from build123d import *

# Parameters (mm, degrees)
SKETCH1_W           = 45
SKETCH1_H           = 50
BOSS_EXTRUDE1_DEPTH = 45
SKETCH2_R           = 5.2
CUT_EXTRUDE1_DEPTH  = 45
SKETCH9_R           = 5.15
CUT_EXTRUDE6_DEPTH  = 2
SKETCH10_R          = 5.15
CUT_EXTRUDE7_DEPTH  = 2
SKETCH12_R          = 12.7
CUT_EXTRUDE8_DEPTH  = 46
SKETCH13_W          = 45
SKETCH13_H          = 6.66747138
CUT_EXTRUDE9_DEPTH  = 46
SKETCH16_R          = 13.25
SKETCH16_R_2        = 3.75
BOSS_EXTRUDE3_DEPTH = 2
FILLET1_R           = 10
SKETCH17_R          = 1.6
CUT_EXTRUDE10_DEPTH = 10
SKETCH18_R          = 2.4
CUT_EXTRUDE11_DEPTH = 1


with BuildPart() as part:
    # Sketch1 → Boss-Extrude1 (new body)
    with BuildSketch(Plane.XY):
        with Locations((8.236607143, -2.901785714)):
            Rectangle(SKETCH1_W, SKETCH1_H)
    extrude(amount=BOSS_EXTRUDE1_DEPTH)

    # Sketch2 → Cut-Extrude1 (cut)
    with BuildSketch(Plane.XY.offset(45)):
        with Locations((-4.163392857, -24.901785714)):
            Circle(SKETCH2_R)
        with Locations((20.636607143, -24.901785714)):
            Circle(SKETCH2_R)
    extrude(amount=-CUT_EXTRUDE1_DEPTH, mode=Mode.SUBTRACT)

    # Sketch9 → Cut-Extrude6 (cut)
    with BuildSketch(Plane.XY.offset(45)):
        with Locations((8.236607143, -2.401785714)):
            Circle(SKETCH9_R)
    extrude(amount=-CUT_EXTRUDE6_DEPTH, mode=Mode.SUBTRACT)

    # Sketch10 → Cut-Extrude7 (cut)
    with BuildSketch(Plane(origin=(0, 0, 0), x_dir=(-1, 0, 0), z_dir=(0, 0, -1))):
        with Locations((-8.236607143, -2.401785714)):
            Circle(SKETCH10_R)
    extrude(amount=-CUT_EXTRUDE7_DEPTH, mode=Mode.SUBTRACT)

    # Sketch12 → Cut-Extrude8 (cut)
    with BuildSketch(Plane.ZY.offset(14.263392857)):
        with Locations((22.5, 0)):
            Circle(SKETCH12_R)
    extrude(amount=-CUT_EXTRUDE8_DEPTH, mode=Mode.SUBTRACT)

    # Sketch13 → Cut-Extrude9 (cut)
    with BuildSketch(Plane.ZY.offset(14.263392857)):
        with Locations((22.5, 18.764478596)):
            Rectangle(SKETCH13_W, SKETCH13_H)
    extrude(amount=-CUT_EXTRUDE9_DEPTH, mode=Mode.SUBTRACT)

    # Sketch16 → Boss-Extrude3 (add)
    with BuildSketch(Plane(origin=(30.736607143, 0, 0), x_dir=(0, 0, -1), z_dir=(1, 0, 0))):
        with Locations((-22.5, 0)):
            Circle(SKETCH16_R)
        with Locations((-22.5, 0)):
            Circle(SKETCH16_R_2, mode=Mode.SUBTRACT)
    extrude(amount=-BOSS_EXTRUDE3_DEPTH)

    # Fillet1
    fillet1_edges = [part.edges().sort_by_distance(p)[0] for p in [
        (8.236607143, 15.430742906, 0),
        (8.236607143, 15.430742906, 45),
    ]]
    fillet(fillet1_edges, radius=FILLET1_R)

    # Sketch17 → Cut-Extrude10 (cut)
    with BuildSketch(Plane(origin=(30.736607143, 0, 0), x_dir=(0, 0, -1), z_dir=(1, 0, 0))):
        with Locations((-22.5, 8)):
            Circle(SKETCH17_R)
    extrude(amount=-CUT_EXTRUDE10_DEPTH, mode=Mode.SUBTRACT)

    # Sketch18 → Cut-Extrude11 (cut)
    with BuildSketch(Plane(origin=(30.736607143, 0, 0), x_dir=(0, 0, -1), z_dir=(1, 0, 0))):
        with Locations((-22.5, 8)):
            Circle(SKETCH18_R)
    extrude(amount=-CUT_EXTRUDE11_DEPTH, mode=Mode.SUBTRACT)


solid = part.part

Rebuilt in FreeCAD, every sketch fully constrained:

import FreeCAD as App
import Part
import Sketcher


def edges_at(feature, points):
    """Names of the edges that pass closest to the given points."""
    edges = feature.Shape.Edges
    near = lambda p: min(range(len(edges)), key=lambda i: edges[i].distToShape(Part.Vertex(*p))[0])
    return sorted({f"Edge{near(p) + 1}" for p in points})


def add_polygon(sketch, points):
    """Adds a closed chain of lines whose ends are joined by coincident constraints."""
    first, n = sketch.GeometryCount, len(points)
    for a, b in zip(points, points[1:] + points[:1]):
        sketch.addGeometry(Part.LineSegment(App.Vector(*a, 0), App.Vector(*b, 0)), False)
    for i in range(n):
        sketch.addConstraint(Sketcher.Constraint("Coincident", first + i, 2, first + (i + 1) % n, 1))

doc = App.newDocument("Part")
body = doc.addObject("PartDesign::Body", "Body")

# Sketch on XY plane
sketch1 = body.newObject("Sketcher::SketchObject", "Sketch")
sketch1.AttachmentSupport = (doc.getObject("XY_Plane"), [""])
sketch1.MapMode = "FlatFace"
add_polygon(sketch1, [(-14, 22), (-14, -28), (31, -28), (31, 22)])  # lines 0-3
sketch1.addConstraint(Sketcher.Constraint("Vertical", 0))
sketch1.addConstraint(Sketcher.Constraint("Horizontal", 1))
sketch1.addConstraint(Sketcher.Constraint("Vertical", 2))
sketch1.addConstraint(Sketcher.Constraint("Horizontal", 3))
sketch1.addConstraint(Sketcher.Constraint("DistanceX", 1, 1, 1, 2, 45.0))
sketch1.addConstraint(Sketcher.Constraint("DistanceY", 0, 2, 0, 1, 50.0))
sketch1.addConstraint(Sketcher.Constraint("DistanceX", 0, 2, -1, 1, 14.263393))
sketch1.addConstraint(Sketcher.Constraint("DistanceY", 0, 2, -1, 1, 27.901786))
pad1 = body.newObject("PartDesign::Pad", "Pad")
pad1.Profile = sketch1
pad1.Length = 45

# Sketch on XY plane
sketch2 = body.newObject("Sketcher::SketchObject", "Sketch001")
sketch2.AttachmentSupport = (doc.getObject("XY_Plane"), [""])
sketch2.MapMode = "FlatFace"
sketch2.AttachmentOffset = App.Placement(App.Vector(0, 0, 45), App.Rotation())
sketch2.addGeometry(Part.Circle(App.Vector(-4, -25, 0), App.Vector(0, 0, 1), 5), False)
sketch2.addGeometry(Part.Circle(App.Vector(21, -25, 0), App.Vector(0, 0, 1), 5), False)
sketch2.addConstraint(Sketcher.Constraint("Equal", 0, 1))
sketch2.addConstraint(Sketcher.Constraint("Horizontal", 0, 3, 1, 3))
sketch2.addConstraint(Sketcher.Constraint("Diameter", 0, 10.4))
sketch2.addConstraint(Sketcher.Constraint("DistanceX", 0, 3, 1, 3, 24.8))
sketch2.addConstraint(Sketcher.Constraint("DistanceX", 0, 3, -1, 1, 4.163393))
sketch2.addConstraint(Sketcher.Constraint("DistanceY", 0, 3, -1, 1, 24.901786))
pocket1 = body.newObject("PartDesign::Pocket", "Pocket")
pocket1.Profile = sketch2
pocket1.Length = 45

# Sketch on XY plane
sketch3 = body.newObject("Sketcher::SketchObject", "Sketch002")
sketch3.AttachmentSupport = (doc.getObject("XY_Plane"), [""])
sketch3.MapMode = "FlatFace"
sketch3.AttachmentOffset = App.Placement(App.Vector(0, 0, 45), App.Rotation())
sketch3.addGeometry(Part.Circle(App.Vector(8, -2, 0), App.Vector(0, 0, 1), 5), False)
sketch3.addConstraint(Sketcher.Constraint("Diameter", 0, 10.3))
sketch3.addConstraint(Sketcher.Constraint("DistanceX", -1, 1, 0, 3, 8.236607))
sketch3.addConstraint(Sketcher.Constraint("DistanceY", 0, 3, -1, 1, 2.401786))
pocket2 = body.newObject("PartDesign::Pocket", "Pocket001")
pocket2.Profile = sketch3
pocket2.Length = 2

# Sketch on XY plane
sketch4 = body.newObject("Sketcher::SketchObject", "Sketch003")
sketch4.AttachmentSupport = (doc.getObject("XY_Plane"), [""])
sketch4.MapMode = "FlatFace"
sketch4.addGeometry(Part.Circle(App.Vector(8, -2, 0), App.Vector(0, 0, 1), 5), False)
sketch4.addConstraint(Sketcher.Constraint("Diameter", 0, 10.3))
sketch4.addConstraint(Sketcher.Constraint("DistanceX", -1, 1, 0, 3, 8.236607))
sketch4.addConstraint(Sketcher.Constraint("DistanceY", 0, 3, -1, 1, 2.401786))
pocket3 = body.newObject("PartDesign::Pocket", "Pocket002")
pocket3.Profile = sketch4
pocket3.Length = 2
pocket3.Reversed = True

# Sketch on YZ plane
sketch5 = body.newObject("Sketcher::SketchObject", "Sketch004")
sketch5.AttachmentSupport = (doc.getObject("YZ_Plane"), [""])
sketch5.MapMode = "FlatFace"
sketch5.AttachmentOffset = App.Placement(App.Vector(0, 0, -14.263393), App.Rotation())
sketch5.addGeometry(Part.Circle(App.Vector(0, 22, 0), App.Vector(0, 0, 1), 13), False)
sketch5.addConstraint(Sketcher.Constraint("PointOnObject", 0, 3, -2))
sketch5.addConstraint(Sketcher.Constraint("Diameter", 0, 25.4))
sketch5.addConstraint(Sketcher.Constraint("DistanceY", -1, 1, 0, 3, 22.5))
pocket4 = body.newObject("PartDesign::Pocket", "Pocket003")
pocket4.Profile = sketch5
pocket4.Length = 46
pocket4.Reversed = True

# Sketch on YZ plane
sketch6 = body.newObject("Sketcher::SketchObject", "Sketch005")
sketch6.AttachmentSupport = (doc.getObject("YZ_Plane"), [""])
sketch6.MapMode = "FlatFace"
sketch6.AttachmentOffset = App.Placement(App.Vector(0, 0, -14.263393), App.Rotation())
add_polygon(sketch6, [(22, 0), (15, 0), (15, 45), (22, 45)])  # lines 0-3
sketch6.addConstraint(Sketcher.Constraint("Horizontal", 0))
sketch6.addConstraint(Sketcher.Constraint("Vertical", 1))
sketch6.addConstraint(Sketcher.Constraint("Horizontal", 2))
sketch6.addConstraint(Sketcher.Constraint("Vertical", 3))
sketch6.addConstraint(Sketcher.Constraint("PointOnObject", 0, 2, -1))
sketch6.addConstraint(Sketcher.Constraint("DistanceY", 1, 1, 1, 2, 45.0))
sketch6.addConstraint(Sketcher.Constraint("DistanceX", 0, 2, 0, 1, 6.667471))
sketch6.addConstraint(Sketcher.Constraint("DistanceX", -1, 1, 0, 2, 15.430743))
pocket5 = body.newObject("PartDesign::Pocket", "Pocket004")
pocket5.Profile = sketch6
pocket5.Length = 46
pocket5.Reversed = True

# Sketch on YZ plane
sketch7 = body.newObject("Sketcher::SketchObject", "Sketch006")
sketch7.AttachmentSupport = (doc.getObject("YZ_Plane"), [""])
sketch7.MapMode = "FlatFace"
sketch7.AttachmentOffset = App.Placement(App.Vector(0, 0, 30.736607), App.Rotation())
sketch7.addGeometry(Part.Circle(App.Vector(0, 22.5, 0), App.Vector(0, 0, 1), 13.2), False)
sketch7.addGeometry(Part.Circle(App.Vector(0, 22.5, 0), App.Vector(0, 0, 1), 3.8), False)
sketch7.addConstraint(Sketcher.Constraint("Coincident", 1, 3, 0, 3))
sketch7.addConstraint(Sketcher.Constraint("PointOnObject", 0, 3, -2))
sketch7.addConstraint(Sketcher.Constraint("Diameter", 0, 26.5))
sketch7.addConstraint(Sketcher.Constraint("Diameter", 1, 7.5))
sketch7.addConstraint(Sketcher.Constraint("DistanceY", -1, 1, 0, 3, 22.5))
pad2 = body.newObject("PartDesign::Pad", "Pad001")
pad2.Profile = sketch7
pad2.Length = 2
pad2.Reversed = True
doc.recompute()

fillet = body.newObject("PartDesign::Fillet", "Fillet")
fillet.Base = (pad2, edges_at(pad2, [(8.237, 15.431, 0), (8.237, 15.431, 45)]))
fillet.Radius = 10

# Sketch on YZ plane
sketch8 = body.newObject("Sketcher::SketchObject", "Sketch007")
sketch8.AttachmentSupport = (doc.getObject("YZ_Plane"), [""])
sketch8.MapMode = "FlatFace"
sketch8.AttachmentOffset = App.Placement(App.Vector(0, 0, 30.736607), App.Rotation())
sketch8.addGeometry(Part.Circle(App.Vector(8, 22.5, 0), App.Vector(0, 0, 1), 1.6), False)
sketch8.addConstraint(Sketcher.Constraint("Diameter", 0, 3.2))
sketch8.addConstraint(Sketcher.Constraint("DistanceX", -1, 1, 0, 3, 8.0))
sketch8.addConstraint(Sketcher.Constraint("DistanceY", -1, 1, 0, 3, 22.5))
pocket6 = body.newObject("PartDesign::Pocket", "Pocket005")
pocket6.Profile = sketch8
pocket6.Length = 10

# Sketch on YZ plane
sketch9 = body.newObject("Sketcher::SketchObject", "Sketch008")
sketch9.AttachmentSupport = (doc.getObject("YZ_Plane"), [""])
sketch9.MapMode = "FlatFace"
sketch9.AttachmentOffset = App.Placement(App.Vector(0, 0, 30.736607), App.Rotation())
sketch9.addGeometry(Part.Circle(App.Vector(8, 22.5, 0), App.Vector(0, 0, 1), 2.4), False)
sketch9.addConstraint(Sketcher.Constraint("Diameter", 0, 4.8))
sketch9.addConstraint(Sketcher.Constraint("DistanceX", -1, 1, 0, 3, 8.0))
sketch9.addConstraint(Sketcher.Constraint("DistanceY", -1, 1, 0, 3, 22.5))
pocket7 = body.newObject("PartDesign::Pocket", "Pocket006")
pocket7.Profile = sketch9
pocket7.Length = 1

doc.recompute()
